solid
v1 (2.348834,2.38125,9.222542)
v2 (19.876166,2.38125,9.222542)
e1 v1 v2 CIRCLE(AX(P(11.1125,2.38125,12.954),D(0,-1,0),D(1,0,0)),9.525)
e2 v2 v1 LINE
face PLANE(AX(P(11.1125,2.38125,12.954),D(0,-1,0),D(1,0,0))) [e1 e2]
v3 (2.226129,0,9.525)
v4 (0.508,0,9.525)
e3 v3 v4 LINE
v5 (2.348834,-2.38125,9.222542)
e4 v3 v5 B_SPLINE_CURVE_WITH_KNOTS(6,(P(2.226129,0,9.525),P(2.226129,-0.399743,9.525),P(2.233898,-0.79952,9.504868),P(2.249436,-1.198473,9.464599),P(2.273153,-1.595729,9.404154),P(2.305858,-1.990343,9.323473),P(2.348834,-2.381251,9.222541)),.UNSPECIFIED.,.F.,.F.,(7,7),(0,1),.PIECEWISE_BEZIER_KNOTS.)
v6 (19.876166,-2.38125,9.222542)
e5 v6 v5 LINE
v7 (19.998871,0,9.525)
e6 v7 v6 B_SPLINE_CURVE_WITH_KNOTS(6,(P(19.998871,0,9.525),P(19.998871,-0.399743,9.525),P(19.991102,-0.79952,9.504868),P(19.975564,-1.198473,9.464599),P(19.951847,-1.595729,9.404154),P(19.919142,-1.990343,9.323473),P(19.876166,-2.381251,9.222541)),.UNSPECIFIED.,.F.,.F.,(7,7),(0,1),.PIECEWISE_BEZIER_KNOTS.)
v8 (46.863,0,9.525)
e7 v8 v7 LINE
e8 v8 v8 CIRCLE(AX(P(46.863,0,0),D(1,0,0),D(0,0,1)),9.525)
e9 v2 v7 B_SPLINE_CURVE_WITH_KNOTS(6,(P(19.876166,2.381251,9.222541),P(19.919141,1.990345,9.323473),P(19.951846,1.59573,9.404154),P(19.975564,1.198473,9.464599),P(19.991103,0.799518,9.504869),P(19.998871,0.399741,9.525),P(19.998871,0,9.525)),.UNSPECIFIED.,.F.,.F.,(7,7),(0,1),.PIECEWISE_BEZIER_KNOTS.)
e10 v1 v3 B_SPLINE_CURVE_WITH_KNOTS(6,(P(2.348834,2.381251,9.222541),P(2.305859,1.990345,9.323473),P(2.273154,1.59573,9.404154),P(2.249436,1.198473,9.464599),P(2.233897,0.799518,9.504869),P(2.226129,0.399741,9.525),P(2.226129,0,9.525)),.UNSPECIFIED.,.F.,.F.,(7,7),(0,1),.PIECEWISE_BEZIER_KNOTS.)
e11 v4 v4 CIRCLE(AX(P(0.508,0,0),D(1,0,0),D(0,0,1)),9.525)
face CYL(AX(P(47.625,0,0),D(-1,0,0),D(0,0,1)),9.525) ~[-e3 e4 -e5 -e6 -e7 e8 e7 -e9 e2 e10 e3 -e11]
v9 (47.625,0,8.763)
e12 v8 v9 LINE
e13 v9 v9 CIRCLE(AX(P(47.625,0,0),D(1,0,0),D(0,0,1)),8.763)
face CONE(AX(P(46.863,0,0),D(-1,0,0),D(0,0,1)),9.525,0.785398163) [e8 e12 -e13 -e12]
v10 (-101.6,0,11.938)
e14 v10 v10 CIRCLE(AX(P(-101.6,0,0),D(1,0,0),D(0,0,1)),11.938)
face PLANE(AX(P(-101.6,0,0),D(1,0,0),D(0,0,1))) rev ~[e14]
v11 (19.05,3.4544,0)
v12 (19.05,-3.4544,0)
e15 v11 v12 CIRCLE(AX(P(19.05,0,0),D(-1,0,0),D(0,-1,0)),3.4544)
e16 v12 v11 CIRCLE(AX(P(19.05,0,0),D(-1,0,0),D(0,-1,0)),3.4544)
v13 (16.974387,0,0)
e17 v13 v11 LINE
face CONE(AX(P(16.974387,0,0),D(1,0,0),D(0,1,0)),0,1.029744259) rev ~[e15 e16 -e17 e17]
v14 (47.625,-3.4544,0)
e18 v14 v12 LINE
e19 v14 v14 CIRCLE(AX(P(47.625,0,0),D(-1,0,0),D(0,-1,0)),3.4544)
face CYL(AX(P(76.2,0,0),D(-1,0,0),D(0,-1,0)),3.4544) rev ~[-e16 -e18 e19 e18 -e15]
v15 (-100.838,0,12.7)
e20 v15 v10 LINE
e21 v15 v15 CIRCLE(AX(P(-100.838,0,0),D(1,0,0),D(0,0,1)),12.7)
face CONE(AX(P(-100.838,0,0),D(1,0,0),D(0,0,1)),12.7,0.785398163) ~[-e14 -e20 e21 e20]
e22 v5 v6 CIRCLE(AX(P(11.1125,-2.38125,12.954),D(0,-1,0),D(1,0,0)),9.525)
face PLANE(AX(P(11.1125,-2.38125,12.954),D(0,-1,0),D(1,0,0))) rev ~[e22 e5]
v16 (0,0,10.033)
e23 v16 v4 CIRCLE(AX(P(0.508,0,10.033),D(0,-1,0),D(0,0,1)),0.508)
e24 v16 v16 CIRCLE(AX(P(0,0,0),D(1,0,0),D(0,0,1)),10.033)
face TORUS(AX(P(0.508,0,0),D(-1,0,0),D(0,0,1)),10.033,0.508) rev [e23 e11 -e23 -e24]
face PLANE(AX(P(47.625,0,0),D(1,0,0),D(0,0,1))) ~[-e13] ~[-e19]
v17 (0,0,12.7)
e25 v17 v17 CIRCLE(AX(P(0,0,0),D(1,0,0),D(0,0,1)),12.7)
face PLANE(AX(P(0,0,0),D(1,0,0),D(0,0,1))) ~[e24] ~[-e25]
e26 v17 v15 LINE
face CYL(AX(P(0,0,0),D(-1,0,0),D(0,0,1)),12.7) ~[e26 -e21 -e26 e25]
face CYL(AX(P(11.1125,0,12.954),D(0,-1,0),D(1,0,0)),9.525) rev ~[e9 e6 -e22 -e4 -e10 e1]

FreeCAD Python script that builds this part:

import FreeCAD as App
import Part
import Sketcher
Q = App.Units.Quantity


def edges_at(feature, points):
    """Names of the edges that pass closest to the given points."""
    edges = feature.Shape.Edges
    near = lambda p: min(range(len(edges)), key=lambda i: edges[i].distToShape(Part.Vertex(*p))[0])
    return sorted({f"Edge{near(p) + 1}" for p in points})

doc = App.newDocument("Part")
body = doc.addObject("PartDesign::Body", "Body")

sketch1 = body.newObject("Sketcher::SketchObject", "Sketch")
sketch1.AttachmentSupport = (doc.getObject("XZ_Plane"), [""])
sketch1.MapMode = "FlatFace"
sketch1.addGeometry([
    Part.LineSegment(App.Vector(-101.6, 12.7, 0), App.Vector(-101.6, 0, 0)),
    Part.LineSegment(App.Vector(-101.6, 0, 0), App.Vector(47.625, 0, 0)),
    Part.LineSegment(App.Vector(47.625, 0, 0), App.Vector(47.625, 9.525, 0)),
    Part.LineSegment(App.Vector(47.625, 9.525, 0), App.Vector(0, 9.525, 0)),
    Part.LineSegment(App.Vector(0, 9.525, 0), App.Vector(0, 12.7, 0)),
    Part.LineSegment(App.Vector(0, 12.7, 0), App.Vector(-101.6, 12.7, 0)),
], False)
sketch1.addConstraint([
    Sketcher.Constraint("Coincident", 0, 2, 1, 1),
    Sketcher.Constraint("Coincident", 1, 2, 2, 1),
    Sketcher.Constraint("Coincident", 2, 2, 3, 1),
    Sketcher.Constraint("Coincident", 3, 2, 4, 1),
    Sketcher.Constraint("Coincident", 4, 2, 5, 1),
    Sketcher.Constraint("Coincident", 5, 2, 0, 1),
    Sketcher.Constraint("Vertical", 0),
    Sketcher.Constraint("Horizontal", 1),
    Sketcher.Constraint("Vertical", 2),
    Sketcher.Constraint("Horizontal", 3),
    Sketcher.Constraint("Vertical", 4),
    Sketcher.Constraint("Horizontal", 5),
    Sketcher.Constraint("PointOnObject", 0, 2, -1),
    Sketcher.Constraint("PointOnObject", 3, 2, -2),
    Sketcher.Constraint("DistanceX", 5, 2, 5, 1, Q("4 in")),
    Sketcher.Constraint("DistanceY", 0, 2, 0, 1, Q("0.5 in")),
    Sketcher.Constraint("DistanceX", 1, 1, 1, 2, Q("5.875 in")),
    Sketcher.Constraint("DistanceY", 2, 1, 2, 2, Q("0.375 in")),
])
revolution = body.newObject("PartDesign::Revolution", "Revolution")
revolution.Profile = sketch1
revolution.ReferenceAxis = (sketch1, ["H_Axis"])
revolution.Angle = 360

sketch2 = body.newObject("Sketcher::SketchObject", "Sketch001")
sketch2.AttachmentSupport = (doc.getObject("YZ_Plane"), [""])
sketch2.MapMode = "FlatFace"
sketch2.AttachmentOffset = App.Placement(App.Vector(0, 0, 1.875 * 25.4), App.Rotation())
sketch2.addGeometry(Part.Circle(App.Vector(0, 0, 0), App.Vector(0, 0, 1), 3.4544), False)
sketch2.addConstraint([
    Sketcher.Constraint("Coincident", 0, 3, -1, 1),
    Sketcher.Constraint("Diameter", 0, Q("0.272 in")),
])
doc.recompute()
hole = body.newObject("PartDesign::Hole", "Hole")
hole.Profile = sketch2
hole.ThreadType = "None"
hole.Diameter = Q("0.272 in")
hole.DepthType = "Dimension"
hole.Depth = Q("1.125 in")
hole.DrillPoint = "Angled"
hole.DrillPointAngle = 118

sketch3 = body.newObject("Sketcher::SketchObject", "Sketch002")
sketch3.AttachmentSupport = (doc.getObject("XZ_Plane"), [""])
sketch3.MapMode = "FlatFace"
sketch3.addGeometry(Part.Circle(App.Vector(11.1125, 12.954, 0), App.Vector(0, 0, 1), 9.525), False)
sketch3.addConstraint([
    Sketcher.Constraint("Diameter", 0, Q("0.75 in")),
    Sketcher.Constraint("DistanceY", -1, 1, 0, 3, Q("0.51 in")),
    Sketcher.Constraint("DistanceX", -1, 1, 0, 3, Q("0.4375 in")),
])
pocket1 = body.newObject("PartDesign::Pocket", "Pocket")
pocket1.Profile = sketch3
pocket1.Length = Q("0.1875 in")
pocket1.Midplane = True
doc.recompute()

fillet = body.newObject("PartDesign::Fillet", "Fillet")
fillet.Base = (pocket1, edges_at(pocket1, [(0, 0, -9.525)]))
fillet.Radius = Q("0.02 in")
doc.recompute()

chamfer = body.newObject("PartDesign::Chamfer", "Chamfer")
chamfer.Base = (fillet, edges_at(fillet, [(-101.6, 0, -12.7), (47.625, 0, -9.525)]))
chamfer.Size = Q("0.03 in")

doc.recompute()
